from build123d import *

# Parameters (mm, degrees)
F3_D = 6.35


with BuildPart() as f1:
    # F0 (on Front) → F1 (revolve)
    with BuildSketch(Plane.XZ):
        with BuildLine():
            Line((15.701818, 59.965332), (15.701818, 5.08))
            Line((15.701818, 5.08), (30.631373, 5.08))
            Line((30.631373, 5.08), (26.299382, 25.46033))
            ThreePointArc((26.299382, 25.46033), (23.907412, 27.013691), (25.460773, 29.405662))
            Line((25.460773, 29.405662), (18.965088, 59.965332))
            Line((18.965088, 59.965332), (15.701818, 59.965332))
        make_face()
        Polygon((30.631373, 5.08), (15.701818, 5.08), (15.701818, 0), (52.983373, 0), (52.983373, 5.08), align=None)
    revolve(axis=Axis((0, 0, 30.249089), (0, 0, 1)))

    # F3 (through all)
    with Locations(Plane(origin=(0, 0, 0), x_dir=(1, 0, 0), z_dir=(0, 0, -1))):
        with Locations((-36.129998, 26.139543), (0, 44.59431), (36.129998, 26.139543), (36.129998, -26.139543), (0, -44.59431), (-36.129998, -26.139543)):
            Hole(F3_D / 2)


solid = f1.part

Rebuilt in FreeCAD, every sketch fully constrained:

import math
import FreeCAD as App
import Part
import Sketcher
Q = App.Units.Quantity

doc = App.newDocument("Part")
params = doc.addObject("Spreadsheet::Sheet", "Params")
for row, (alias, value) in enumerate([
    ("sketch1_height", "0.2 in"),
    ("sketch1_width", "0.88 in"),
    ("revolution_angle", "360 deg"),
    ("sketch2_diameter", "0.25 in"),
    ("hole_diameter", "0.25 in"),
], start=1):
    params.set(f"A{row}", alias)
    params.set(f"B{row}", "=" + value)
    params.setAlias(f"B{row}", alias)

body = doc.addObject("PartDesign::Body", "Body")

# Sketch on XZ plane
sketch1 = body.newObject("Sketcher::SketchObject", "Sketch")
sketch1.AttachmentSupport = (doc.getObject("XZ_Plane"), [""])
sketch1.MapMode = "FlatFace"
sketch1.addGeometry(Part.LineSegment(App.Vector(15.7, 60, 0), App.Vector(15.7, 0, 0)), False)
sketch1.addGeometry(Part.LineSegment(App.Vector(15.7, 0, 0), App.Vector(53, 0, 0)), False)
sketch1.addGeometry(Part.LineSegment(App.Vector(53, 0, 0), App.Vector(53, 5.1, 0)), False)
sketch1.addGeometry(Part.LineSegment(App.Vector(53, 5.1, 0), App.Vector(30.6, 5.1, 0)), False)
sketch1.addGeometry(Part.LineSegment(App.Vector(30.6, 5.1, 0), App.Vector(26.3, 25.5, 0)), False)
sketch1.addGeometry(Part.ArcOfCircle(Part.Circle(App.Vector(25.9, 27.4, 0), App.Vector(0, 0, 1), 2), math.radians(102), math.radians(282)), False)
sketch1.addGeometry(Part.LineSegment(App.Vector(25.5, 29.4, 0), App.Vector(19, 60, 0)), False)
sketch1.addGeometry(Part.LineSegment(App.Vector(19, 60, 0), App.Vector(15.7, 60, 0)), False)
sketch1.addConstraint(Sketcher.Constraint("Coincident", 0, 2, 1, 1))
sketch1.addConstraint(Sketcher.Constraint("Coincident", 1, 2, 2, 1))
sketch1.addConstraint(Sketcher.Constraint("Coincident", 2, 2, 3, 1))
sketch1.addConstraint(Sketcher.Constraint("Coincident", 3, 2, 4, 1))
sketch1.addConstraint(Sketcher.Constraint("Coincident", 4, 2, 5, 2))
sketch1.addConstraint(Sketcher.Constraint("Coincident", 5, 1, 6, 1))
sketch1.addConstraint(Sketcher.Constraint("Coincident", 6, 2, 7, 1))
sketch1.addConstraint(Sketcher.Constraint("Coincident", 7, 2, 0, 1))
sketch1.addConstraint(Sketcher.Constraint("Vertical", 0))
sketch1.addConstraint(Sketcher.Constraint("Horizontal", 1))
sketch1.addConstraint(Sketcher.Constraint("Vertical", 2))
sketch1.addConstraint(Sketcher.Constraint("Horizontal", 3))
sketch1.addConstraint(Sketcher.Constraint("Horizontal", 7))
sketch1.addConstraint(Sketcher.Constraint("PointOnObject", 0, 2, -1))
sketch1.addConstraint(Sketcher.Constraint("Parallel", 4, 6))
sketch1.addConstraint(Sketcher.Constraint("DistanceY", 2, 1, 2, 2, Q("0.2 in")))
sketch1.addConstraint(Sketcher.Constraint("DistanceX", 3, 2, 3, 1, Q("0.88 in")))
sketch1.addConstraint(Sketcher.Constraint("Radius", 5, 2.016737))
sketch1.addConstraint(Sketcher.Constraint("DistanceX", 7, 2, 7, 1, 3.26327))
sketch1.addConstraint(Sketcher.Constraint("DistanceY", 0, 2, 0, 1, 59.965332))
sketch1.addConstraint(Sketcher.Constraint("DistanceX", 5, 1, 3, 2, 5.1706))
sketch1.addConstraint(Sketcher.Constraint("DistanceY", 4, 2, 6, 2, 34.505002))
sketch1.addConstraint(Sketcher.Constraint("DistanceX", 1, 1, 1, 2, 37.281555))
sketch1.addConstraint(Sketcher.Constraint("DistanceX", -1, 1, 6, 2, 18.965088))
sketch1.addConstraint(Sketcher.Constraint("DistanceX", 0, 2, 5, 3, 10.17826))
sketch1.setExpression("Constraints[15]", "Params.sketch1_height")
sketch1.setExpression("Constraints[16]", "Params.sketch1_width")
revolution = body.newObject("PartDesign::Revolution", "Revolution")
revolution.Profile = sketch1
revolution.ReferenceAxis = (sketch1, ["V_Axis"])
revolution.setExpression("Angle", "Params.revolution_angle")

# Sketch on XY plane
sketch2 = body.newObject("Sketcher::SketchObject", "Sketch001")
sketch2.AttachmentSupport = (doc.getObject("XY_Plane"), [""])
sketch2.MapMode = "FlatFace"
sketch2.addGeometry(Part.Circle(App.Vector(-36.1, -26.1, 0), App.Vector(0, 0, 1), 3.2), False)
sketch2.addGeometry(Part.Circle(App.Vector(0, -44.6, 0), App.Vector(0, 0, 1), 3.2), False)
sketch2.addGeometry(Part.Circle(App.Vector(36.1, -26.1, 0), App.Vector(0, 0, 1), 3.2), False)
sketch2.addGeometry(Part.Circle(App.Vector(36.1, 26.1, 0), App.Vector(0, 0, 1), 3.2), False)
sketch2.addGeometry(Part.Circle(App.Vector(0, 44.6, 0), App.Vector(0, 0, 1), 3.2), False)
sketch2.addGeometry(Part.Circle(App.Vector(-36.1, 26.1, 0), App.Vector(0, 0, 1), 3.2), False)
sketch2.addConstraint(Sketcher.Constraint("Equal", 0, 1))
sketch2.addConstraint(Sketcher.Constraint("Equal", 1, 2))
sketch2.addConstraint(Sketcher.Constraint("Equal", 2, 3))
sketch2.addConstraint(Sketcher.Constraint("Equal", 3, 4))
sketch2.addConstraint(Sketcher.Constraint("Equal", 4, 5))
sketch2.addConstraint(Sketcher.Constraint("Symmetric", 0, 3, 3, 3, -1, 1))
sketch2.addConstraint(Sketcher.Constraint("Symmetric", 1, 3, 4, 3, -1, 1))
sketch2.addConstraint(Sketcher.Constraint("Symmetric", 2, 3, 5, 3, -1, 1))
sketch2.addConstraint(Sketcher.Constraint("Symmetric", 0, 3, 2, 3, -2))
sketch2.addConstraint(Sketcher.Constraint("PointOnObject", 1, 3, -2))
sketch2.addConstraint(Sketcher.Constraint("Diameter", 0, Q("0.25 in")))
sketch2.addConstraint(Sketcher.Constraint("DistanceY", 1, 3, -1, 1, 44.59431))
sketch2.addConstraint(Sketcher.Constraint("DistanceX", 0, 3, -1, 1, 36.129998))
sketch2.addConstraint(Sketcher.Constraint("DistanceY", 0, 3, -1, 1, 26.139543))
sketch2.setExpression("Constraints[10]", "Params.sketch2_diameter")
doc.recompute()
hole = body.newObject("PartDesign::Hole", "Hole")
hole.Profile = sketch2
hole.ThreadType = "None"
hole.setExpression("Diameter", "Params.hole_diameter")
hole.DepthType = "ThroughAll"
hole.Reversed = True

doc.recompute()
